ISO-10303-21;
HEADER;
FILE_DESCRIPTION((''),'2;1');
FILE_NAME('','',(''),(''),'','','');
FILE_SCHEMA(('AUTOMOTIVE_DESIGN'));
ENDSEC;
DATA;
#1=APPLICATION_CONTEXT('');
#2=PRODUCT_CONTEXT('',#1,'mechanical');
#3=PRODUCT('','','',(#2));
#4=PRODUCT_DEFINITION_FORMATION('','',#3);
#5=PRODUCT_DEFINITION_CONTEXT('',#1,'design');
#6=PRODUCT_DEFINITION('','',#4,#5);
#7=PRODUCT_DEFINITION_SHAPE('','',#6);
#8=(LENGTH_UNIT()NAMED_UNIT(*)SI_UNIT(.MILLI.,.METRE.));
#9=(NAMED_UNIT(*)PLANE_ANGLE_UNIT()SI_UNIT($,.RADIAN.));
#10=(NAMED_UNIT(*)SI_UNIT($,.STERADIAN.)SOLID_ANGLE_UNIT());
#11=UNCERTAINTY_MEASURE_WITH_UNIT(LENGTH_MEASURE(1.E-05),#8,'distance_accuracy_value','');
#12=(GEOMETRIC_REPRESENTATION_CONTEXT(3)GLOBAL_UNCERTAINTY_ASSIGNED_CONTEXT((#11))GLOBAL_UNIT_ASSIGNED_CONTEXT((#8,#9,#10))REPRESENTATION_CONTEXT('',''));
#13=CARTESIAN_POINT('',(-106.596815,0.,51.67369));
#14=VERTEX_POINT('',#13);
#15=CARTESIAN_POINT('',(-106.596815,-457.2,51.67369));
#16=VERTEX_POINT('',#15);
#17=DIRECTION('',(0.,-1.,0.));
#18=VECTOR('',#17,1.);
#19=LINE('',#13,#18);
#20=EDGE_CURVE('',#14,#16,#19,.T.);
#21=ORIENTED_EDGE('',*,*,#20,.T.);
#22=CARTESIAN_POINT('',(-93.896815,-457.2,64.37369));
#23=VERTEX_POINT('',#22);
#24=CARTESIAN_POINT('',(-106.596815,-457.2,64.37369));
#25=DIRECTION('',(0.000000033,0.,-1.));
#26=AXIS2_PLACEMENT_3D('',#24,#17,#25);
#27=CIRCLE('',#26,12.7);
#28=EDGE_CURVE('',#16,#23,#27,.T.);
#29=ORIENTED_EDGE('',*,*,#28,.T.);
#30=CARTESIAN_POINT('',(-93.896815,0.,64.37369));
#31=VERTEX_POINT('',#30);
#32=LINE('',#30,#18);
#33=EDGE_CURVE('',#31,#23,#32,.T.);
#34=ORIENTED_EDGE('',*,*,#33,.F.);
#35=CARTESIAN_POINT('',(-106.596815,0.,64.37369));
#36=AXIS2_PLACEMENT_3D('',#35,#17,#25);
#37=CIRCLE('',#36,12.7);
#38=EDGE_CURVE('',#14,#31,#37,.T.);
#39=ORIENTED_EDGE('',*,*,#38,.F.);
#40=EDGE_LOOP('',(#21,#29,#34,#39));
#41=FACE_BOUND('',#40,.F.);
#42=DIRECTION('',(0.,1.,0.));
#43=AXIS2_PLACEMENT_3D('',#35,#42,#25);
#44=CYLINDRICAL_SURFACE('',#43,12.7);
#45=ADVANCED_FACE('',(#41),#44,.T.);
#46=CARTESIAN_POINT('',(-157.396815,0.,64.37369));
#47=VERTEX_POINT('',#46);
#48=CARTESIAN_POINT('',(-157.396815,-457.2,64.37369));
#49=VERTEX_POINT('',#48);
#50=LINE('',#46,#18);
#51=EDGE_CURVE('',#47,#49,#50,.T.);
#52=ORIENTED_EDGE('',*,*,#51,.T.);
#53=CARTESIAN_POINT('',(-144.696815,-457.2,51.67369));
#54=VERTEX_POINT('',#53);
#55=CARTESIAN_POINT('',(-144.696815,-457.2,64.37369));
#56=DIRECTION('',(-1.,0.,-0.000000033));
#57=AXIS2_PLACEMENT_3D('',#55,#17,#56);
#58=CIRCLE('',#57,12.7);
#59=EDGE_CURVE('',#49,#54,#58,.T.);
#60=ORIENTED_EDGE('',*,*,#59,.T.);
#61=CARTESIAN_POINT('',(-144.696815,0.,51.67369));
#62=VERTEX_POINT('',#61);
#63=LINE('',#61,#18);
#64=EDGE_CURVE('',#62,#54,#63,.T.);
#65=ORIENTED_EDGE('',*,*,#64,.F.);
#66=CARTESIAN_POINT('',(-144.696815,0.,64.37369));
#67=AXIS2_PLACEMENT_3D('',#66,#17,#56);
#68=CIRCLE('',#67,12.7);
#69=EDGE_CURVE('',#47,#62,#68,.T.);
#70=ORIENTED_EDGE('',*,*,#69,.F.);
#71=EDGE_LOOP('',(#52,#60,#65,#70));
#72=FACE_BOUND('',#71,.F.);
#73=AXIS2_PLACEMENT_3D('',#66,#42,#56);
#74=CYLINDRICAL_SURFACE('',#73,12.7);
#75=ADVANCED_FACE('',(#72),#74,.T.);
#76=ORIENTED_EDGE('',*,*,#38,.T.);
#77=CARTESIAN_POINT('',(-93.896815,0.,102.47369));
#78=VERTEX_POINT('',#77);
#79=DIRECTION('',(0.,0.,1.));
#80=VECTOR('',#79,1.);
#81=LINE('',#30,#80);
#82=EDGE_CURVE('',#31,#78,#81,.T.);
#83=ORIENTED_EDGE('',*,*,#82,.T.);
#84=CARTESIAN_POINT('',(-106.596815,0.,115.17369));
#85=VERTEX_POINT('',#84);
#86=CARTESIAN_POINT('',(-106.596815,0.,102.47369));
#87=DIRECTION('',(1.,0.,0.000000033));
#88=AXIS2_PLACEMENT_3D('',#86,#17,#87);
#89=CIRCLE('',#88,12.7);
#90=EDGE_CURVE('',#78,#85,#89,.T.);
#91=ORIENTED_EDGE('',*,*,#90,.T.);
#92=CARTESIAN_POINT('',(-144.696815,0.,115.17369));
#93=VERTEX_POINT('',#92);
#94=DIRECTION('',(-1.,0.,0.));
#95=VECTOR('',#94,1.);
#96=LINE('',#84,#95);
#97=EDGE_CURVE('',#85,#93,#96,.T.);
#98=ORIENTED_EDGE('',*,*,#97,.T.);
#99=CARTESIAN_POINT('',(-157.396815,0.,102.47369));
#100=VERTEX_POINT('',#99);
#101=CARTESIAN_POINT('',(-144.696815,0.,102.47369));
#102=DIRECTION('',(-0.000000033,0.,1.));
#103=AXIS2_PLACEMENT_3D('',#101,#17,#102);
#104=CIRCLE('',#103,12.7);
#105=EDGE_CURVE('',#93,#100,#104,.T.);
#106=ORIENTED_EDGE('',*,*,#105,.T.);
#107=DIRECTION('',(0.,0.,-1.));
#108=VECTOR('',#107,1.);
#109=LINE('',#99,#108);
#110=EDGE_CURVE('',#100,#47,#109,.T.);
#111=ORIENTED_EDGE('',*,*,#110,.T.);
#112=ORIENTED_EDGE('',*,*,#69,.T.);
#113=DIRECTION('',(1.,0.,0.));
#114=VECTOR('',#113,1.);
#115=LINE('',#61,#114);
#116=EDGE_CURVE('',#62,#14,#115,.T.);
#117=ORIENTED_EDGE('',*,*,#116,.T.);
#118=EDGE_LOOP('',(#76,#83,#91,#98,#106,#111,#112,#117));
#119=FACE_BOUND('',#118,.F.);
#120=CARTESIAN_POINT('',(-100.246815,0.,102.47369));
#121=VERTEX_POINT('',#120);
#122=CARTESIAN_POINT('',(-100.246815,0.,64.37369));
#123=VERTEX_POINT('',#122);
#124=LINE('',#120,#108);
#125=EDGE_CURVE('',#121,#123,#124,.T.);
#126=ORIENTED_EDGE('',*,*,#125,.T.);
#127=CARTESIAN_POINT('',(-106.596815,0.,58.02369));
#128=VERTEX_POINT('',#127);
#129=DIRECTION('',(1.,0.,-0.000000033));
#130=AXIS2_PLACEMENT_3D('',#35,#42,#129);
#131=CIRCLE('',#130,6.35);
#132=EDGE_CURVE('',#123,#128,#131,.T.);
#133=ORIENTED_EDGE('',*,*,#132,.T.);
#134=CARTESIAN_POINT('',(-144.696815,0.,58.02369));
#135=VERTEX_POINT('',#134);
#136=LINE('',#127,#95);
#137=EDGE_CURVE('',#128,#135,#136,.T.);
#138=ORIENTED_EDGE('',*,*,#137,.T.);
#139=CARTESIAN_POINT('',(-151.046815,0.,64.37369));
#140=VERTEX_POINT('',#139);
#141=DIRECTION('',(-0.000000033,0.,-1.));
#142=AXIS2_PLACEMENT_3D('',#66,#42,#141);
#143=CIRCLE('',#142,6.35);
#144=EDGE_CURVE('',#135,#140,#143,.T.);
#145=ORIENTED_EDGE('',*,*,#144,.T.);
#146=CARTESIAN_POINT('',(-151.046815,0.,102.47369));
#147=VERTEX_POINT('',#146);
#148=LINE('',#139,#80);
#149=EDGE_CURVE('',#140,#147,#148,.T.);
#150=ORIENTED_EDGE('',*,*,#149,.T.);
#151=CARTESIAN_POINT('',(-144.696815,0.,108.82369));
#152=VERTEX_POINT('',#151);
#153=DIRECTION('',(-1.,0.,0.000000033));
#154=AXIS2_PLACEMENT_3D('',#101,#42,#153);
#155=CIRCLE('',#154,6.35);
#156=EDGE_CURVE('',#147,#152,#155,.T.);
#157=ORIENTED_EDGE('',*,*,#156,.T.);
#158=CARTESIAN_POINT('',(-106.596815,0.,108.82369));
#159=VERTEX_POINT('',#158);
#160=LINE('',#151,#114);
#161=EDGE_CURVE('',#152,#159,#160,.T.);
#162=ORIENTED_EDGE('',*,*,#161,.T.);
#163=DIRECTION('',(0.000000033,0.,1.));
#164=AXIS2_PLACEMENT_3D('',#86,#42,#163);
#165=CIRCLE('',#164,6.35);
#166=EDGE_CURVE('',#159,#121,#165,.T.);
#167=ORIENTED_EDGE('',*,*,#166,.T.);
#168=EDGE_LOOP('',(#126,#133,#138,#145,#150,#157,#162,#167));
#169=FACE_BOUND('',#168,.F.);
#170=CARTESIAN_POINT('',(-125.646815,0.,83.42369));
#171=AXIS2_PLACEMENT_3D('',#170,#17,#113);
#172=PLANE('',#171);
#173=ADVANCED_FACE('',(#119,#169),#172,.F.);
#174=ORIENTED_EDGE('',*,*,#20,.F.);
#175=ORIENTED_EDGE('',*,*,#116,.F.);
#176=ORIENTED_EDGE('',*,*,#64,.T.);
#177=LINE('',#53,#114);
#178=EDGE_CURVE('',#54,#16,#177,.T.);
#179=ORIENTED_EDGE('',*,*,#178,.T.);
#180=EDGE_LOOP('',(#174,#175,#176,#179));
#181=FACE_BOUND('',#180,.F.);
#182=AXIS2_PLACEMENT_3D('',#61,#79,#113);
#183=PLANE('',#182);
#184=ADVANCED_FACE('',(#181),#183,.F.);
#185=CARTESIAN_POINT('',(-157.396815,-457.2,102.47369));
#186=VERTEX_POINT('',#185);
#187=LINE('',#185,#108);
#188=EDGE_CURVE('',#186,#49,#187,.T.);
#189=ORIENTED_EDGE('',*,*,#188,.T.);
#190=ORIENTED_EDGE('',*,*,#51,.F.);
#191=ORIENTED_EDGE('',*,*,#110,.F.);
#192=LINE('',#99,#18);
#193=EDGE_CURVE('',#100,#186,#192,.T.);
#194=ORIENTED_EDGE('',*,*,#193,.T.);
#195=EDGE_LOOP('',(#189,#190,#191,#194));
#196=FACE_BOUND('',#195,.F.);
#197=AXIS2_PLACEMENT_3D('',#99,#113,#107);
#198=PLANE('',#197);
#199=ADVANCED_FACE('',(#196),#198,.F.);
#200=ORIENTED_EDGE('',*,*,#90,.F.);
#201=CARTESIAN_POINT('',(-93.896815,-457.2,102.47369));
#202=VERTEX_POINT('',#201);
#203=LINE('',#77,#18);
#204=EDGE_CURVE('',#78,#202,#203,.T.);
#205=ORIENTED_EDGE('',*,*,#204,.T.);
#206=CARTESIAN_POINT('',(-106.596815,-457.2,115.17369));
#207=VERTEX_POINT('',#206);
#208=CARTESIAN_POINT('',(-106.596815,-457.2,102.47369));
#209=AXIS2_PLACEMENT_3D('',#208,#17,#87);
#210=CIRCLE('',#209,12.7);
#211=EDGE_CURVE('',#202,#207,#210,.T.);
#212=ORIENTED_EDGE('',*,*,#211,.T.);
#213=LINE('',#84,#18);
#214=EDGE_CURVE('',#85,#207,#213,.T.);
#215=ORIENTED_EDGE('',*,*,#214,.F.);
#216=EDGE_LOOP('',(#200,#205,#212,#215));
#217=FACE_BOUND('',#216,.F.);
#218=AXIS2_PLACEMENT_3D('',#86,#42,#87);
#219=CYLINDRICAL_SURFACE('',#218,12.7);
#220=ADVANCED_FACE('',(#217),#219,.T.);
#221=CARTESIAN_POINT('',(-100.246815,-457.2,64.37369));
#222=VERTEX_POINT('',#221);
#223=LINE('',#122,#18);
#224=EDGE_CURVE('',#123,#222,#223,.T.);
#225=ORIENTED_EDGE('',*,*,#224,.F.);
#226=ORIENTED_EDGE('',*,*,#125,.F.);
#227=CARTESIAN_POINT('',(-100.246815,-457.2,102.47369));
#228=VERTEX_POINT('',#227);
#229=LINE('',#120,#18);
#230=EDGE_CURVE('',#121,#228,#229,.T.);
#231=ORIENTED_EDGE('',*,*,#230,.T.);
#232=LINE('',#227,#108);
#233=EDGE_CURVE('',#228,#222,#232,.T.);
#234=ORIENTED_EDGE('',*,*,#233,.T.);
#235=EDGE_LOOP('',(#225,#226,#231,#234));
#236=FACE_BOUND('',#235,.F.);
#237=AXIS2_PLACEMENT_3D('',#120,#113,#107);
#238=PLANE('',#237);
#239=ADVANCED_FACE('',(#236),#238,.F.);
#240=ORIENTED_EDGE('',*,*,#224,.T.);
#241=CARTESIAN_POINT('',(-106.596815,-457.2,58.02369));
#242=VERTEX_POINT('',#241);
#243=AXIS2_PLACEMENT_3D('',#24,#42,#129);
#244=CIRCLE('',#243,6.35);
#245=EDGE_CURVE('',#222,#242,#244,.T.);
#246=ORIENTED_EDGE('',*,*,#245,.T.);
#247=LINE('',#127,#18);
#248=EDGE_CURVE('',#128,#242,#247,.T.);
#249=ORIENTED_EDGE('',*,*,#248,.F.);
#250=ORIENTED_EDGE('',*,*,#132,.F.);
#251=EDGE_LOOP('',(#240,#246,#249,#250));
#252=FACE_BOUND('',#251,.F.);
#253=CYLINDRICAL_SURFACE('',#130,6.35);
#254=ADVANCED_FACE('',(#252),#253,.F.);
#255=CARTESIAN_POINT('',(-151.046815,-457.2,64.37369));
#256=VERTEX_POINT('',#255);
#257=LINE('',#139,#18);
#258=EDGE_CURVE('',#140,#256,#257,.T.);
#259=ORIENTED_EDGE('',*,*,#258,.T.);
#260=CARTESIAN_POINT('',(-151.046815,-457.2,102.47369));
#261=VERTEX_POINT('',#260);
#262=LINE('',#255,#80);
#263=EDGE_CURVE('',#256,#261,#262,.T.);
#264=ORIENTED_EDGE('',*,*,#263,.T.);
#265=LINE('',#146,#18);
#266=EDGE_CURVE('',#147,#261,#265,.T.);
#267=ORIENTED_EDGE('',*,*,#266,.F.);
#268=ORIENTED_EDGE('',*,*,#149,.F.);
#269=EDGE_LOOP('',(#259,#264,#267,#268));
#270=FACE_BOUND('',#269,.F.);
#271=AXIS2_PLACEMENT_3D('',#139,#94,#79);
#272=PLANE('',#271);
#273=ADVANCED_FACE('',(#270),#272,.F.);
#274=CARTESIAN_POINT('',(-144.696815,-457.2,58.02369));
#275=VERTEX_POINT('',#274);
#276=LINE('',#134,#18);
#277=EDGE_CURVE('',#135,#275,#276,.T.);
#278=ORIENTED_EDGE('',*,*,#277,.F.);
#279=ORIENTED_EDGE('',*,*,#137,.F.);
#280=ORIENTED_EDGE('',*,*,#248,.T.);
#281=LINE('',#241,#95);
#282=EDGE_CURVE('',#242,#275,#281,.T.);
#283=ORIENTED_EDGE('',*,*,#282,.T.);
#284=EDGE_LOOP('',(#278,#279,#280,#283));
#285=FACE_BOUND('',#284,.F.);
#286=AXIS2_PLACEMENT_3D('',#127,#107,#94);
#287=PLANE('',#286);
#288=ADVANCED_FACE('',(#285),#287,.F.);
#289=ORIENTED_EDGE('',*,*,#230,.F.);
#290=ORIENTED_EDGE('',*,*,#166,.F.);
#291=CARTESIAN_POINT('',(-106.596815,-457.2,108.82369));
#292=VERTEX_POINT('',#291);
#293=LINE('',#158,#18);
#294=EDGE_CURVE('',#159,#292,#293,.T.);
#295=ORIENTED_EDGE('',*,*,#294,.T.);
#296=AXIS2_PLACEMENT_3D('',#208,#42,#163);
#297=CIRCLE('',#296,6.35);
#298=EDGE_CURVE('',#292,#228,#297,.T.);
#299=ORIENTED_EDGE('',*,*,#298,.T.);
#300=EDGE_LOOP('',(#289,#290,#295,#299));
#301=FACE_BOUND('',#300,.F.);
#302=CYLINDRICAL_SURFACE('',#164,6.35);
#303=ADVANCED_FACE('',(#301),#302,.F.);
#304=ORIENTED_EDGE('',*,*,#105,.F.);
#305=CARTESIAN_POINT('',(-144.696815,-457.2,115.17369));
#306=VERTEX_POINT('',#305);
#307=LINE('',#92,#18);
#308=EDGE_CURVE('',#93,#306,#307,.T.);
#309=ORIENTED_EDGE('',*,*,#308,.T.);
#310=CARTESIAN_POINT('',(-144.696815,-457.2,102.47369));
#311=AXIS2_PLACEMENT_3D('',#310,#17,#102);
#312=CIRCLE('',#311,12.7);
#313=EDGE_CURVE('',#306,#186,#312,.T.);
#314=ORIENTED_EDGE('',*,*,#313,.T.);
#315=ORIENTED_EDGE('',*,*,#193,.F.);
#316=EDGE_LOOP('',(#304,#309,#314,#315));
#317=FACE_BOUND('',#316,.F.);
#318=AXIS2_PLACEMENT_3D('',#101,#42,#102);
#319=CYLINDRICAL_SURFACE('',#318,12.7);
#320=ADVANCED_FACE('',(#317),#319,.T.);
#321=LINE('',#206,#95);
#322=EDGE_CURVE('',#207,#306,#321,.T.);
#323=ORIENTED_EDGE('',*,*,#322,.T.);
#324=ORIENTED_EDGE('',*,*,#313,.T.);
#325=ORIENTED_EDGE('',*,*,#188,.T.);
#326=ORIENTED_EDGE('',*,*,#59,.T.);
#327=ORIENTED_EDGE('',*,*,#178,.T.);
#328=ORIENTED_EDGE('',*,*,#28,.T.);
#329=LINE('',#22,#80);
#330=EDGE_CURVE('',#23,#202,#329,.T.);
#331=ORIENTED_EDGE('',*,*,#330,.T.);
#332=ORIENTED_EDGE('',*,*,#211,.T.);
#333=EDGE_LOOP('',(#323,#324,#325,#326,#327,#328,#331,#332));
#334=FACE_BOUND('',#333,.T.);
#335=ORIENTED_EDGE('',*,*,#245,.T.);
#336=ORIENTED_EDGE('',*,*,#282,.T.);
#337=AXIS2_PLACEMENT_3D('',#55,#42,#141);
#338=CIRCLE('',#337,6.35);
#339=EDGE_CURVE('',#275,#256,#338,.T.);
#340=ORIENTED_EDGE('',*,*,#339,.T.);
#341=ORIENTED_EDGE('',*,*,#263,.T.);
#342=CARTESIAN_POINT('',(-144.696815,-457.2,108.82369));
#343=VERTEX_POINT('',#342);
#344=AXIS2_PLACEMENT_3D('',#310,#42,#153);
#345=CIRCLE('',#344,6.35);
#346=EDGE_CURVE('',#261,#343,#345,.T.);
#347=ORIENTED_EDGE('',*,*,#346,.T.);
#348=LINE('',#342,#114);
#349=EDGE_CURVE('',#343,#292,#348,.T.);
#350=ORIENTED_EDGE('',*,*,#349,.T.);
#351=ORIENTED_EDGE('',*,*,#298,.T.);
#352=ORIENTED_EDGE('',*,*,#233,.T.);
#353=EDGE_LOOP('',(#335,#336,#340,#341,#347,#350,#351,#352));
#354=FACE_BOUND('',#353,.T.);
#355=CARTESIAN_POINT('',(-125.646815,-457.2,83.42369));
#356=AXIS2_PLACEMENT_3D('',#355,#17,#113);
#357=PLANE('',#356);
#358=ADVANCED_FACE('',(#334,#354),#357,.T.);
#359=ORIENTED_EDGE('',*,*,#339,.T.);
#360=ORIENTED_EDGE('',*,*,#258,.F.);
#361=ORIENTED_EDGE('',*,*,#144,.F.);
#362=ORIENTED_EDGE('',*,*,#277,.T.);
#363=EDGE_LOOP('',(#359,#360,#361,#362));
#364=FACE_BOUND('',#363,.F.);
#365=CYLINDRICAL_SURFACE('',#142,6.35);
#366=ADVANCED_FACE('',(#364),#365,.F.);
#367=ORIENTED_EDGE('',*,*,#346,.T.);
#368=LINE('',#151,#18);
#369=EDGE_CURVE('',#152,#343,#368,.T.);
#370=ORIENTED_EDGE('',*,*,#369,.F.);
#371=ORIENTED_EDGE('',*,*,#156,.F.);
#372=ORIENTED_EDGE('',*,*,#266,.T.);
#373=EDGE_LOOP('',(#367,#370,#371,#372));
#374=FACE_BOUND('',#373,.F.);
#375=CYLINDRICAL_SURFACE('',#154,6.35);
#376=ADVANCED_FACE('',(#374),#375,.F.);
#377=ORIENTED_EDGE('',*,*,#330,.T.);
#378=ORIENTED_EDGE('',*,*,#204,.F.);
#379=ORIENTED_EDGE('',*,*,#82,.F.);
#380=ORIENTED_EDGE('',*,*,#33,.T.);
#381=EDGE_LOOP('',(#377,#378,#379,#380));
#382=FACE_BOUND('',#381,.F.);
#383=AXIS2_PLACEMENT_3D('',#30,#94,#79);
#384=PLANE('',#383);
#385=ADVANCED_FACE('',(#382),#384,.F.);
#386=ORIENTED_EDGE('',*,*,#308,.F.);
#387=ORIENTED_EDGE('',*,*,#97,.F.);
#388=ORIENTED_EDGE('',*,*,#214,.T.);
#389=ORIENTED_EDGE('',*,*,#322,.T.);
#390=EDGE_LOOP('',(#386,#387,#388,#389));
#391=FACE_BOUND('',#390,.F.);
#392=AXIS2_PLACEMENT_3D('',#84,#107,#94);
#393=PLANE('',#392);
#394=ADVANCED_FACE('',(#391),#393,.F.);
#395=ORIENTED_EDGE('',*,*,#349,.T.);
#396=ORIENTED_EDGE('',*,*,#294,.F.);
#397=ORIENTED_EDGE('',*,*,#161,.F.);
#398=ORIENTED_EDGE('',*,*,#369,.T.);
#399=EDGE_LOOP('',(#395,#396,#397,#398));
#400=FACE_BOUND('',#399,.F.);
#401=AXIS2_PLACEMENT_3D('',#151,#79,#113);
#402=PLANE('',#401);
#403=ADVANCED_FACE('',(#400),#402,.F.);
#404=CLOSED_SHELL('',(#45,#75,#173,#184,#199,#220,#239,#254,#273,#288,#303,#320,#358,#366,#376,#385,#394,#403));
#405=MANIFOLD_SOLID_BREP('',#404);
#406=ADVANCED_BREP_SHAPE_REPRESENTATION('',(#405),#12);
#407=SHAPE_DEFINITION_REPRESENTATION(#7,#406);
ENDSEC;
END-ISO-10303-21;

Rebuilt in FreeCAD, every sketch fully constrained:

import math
import FreeCAD as App
import Part
import Sketcher

V = App.Vector
Q = App.Units.Quantity

doc = App.newDocument("Part")
params = doc.addObject("Spreadsheet::Sheet", "Params")
for row, (alias, value) in enumerate([
    ("sketch1_radius", "0.5 in"),
    ("sketch1_radius2", "0.25 in"),
    ("sketch1_width", "1.5 in"),
    ("pad1_length", "18 in"),
], start=1):
    params.set(f"A{row}", alias)
    params.set(f"B{row}", "=" + value)
    params.setAlias(f"B{row}", alias)

body = doc.addObject("PartDesign::Body", "Body")

sketch1 = body.newObject("Sketcher::SketchObject", "Sketch")
sketch1.AttachmentSupport = (doc.getObject("XZ_Plane"), [""])
sketch1.MapMode = "FlatFace"
sketch1.addGeometry([
    Part.LineSegment(V(-157, 102, 0), V(-157, 64, 0)),
    Part.ArcOfCircle(Part.Circle(V(-145, 64, 0), V(0, 0, 1), 13), math.radians(-180), math.radians(-90)),
    Part.LineSegment(V(-145, 52, 0), V(-107, 52, 0)),
    Part.ArcOfCircle(Part.Circle(V(-107, 64, 0), V(0, 0, 1), 13), math.radians(-90), math.radians(0)),
    Part.LineSegment(V(-94, 64, 0), V(-94, 102, 0)),
    Part.ArcOfCircle(Part.Circle(V(-107, 102, 0), V(0, 0, 1), 13), math.radians(0), math.radians(90)),
    Part.LineSegment(V(-107, 115, 0), V(-145, 115, 0)),
    Part.ArcOfCircle(Part.Circle(V(-145, 102, 0), V(0, 0, 1), 13), math.radians(90), math.radians(180)),
    Part.ArcOfCircle(Part.Circle(V(-107, 64, 0), V(0, 0, 1), 6), math.radians(-90), math.radians(0)),
    Part.LineSegment(V(-107, 58, 0), V(-145, 58, 0)),
    Part.ArcOfCircle(Part.Circle(V(-145, 64, 0), V(0, 0, 1), 6), math.radians(-180), math.radians(-90)),
    Part.LineSegment(V(-151, 64, 0), V(-151, 102, 0)),
    Part.ArcOfCircle(Part.Circle(V(-145, 102, 0), V(0, 0, 1), 6), math.radians(90), math.radians(180)),
    Part.LineSegment(V(-145, 109, 0), V(-107, 109, 0)),
    Part.ArcOfCircle(Part.Circle(V(-107, 102, 0), V(0, 0, 1), 6), math.radians(0), math.radians(90)),
    Part.LineSegment(V(-100, 102, 0), V(-100, 64, 0)),
], False)
sketch1.addConstraint([
    Sketcher.Constraint("Tangent", 0, 2, 1, 1),
    Sketcher.Constraint("Tangent", 1, 2, 2, 1),
    Sketcher.Constraint("Tangent", 2, 2, 3, 1),
    Sketcher.Constraint("Tangent", 3, 2, 4, 1),
    Sketcher.Constraint("Tangent", 4, 2, 5, 1),
    Sketcher.Constraint("Tangent", 5, 2, 6, 1),
    Sketcher.Constraint("Tangent", 6, 2, 7, 1),
    Sketcher.Constraint("Tangent", 7, 2, 0, 1),
    Sketcher.Constraint("Tangent", 8, 1, 9, 1),
    Sketcher.Constraint("Tangent", 9, 2, 10, 2),
    Sketcher.Constraint("Tangent", 10, 1, 11, 1),
    Sketcher.Constraint("Tangent", 11, 2, 12, 2),
    Sketcher.Constraint("Tangent", 12, 1, 13, 1),
    Sketcher.Constraint("Tangent", 13, 2, 14, 2),
    Sketcher.Constraint("Tangent", 14, 1, 15, 1),
    Sketcher.Constraint("Tangent", 15, 2, 8, 2),
    Sketcher.Constraint("Vertical", 0),
    Sketcher.Constraint("Horizontal", 2),
    Sketcher.Constraint("Vertical", 4),
    Sketcher.Constraint("Horizontal", 6),
    Sketcher.Constraint("Horizontal", 9),
    Sketcher.Constraint("Vertical", 11),
    Sketcher.Constraint("Horizontal", 13),
    Sketcher.Constraint("Vertical", 15),
    Sketcher.Constraint("Coincident", 8, 3, 3, 3),
    Sketcher.Constraint("Coincident", 10, 3, 1, 3),
    Sketcher.Constraint("Coincident", 12, 3, 7, 3),
    Sketcher.Constraint("Equal", 1, 3),
    Sketcher.Constraint("Equal", 3, 5),
    Sketcher.Constraint("Equal", 5, 7),
    Sketcher.Constraint("Equal", 12, 14),
    Sketcher.Constraint("Equal", 13, 0),
    Sketcher.Constraint("Radius", 1, Q("0.5 in")),
    Sketcher.Constraint("Radius", 8, Q("0.25 in")),
    Sketcher.Constraint("DistanceX", 2, 1, 2, 2, Q("1.5 in")),
    Sketcher.Constraint("DistanceY", -1, 1, 1, 3, Q("64.37369 mm")),
    Sketcher.Constraint("DistanceX", 1, 3, -1, 1, Q("144.696815 mm")),
])
sketch1.setExpression("Constraints[32]", "Params.sketch1_radius")
sketch1.setExpression("Constraints[33]", "Params.sketch1_radius2")
sketch1.setExpression("Constraints[34]", "Params.sketch1_width")
pad1 = body.newObject("PartDesign::Pad", "Pad")
pad1.Profile = sketch1
pad1.setExpression("Length", "Params.pad1_length")

doc.recompute()
